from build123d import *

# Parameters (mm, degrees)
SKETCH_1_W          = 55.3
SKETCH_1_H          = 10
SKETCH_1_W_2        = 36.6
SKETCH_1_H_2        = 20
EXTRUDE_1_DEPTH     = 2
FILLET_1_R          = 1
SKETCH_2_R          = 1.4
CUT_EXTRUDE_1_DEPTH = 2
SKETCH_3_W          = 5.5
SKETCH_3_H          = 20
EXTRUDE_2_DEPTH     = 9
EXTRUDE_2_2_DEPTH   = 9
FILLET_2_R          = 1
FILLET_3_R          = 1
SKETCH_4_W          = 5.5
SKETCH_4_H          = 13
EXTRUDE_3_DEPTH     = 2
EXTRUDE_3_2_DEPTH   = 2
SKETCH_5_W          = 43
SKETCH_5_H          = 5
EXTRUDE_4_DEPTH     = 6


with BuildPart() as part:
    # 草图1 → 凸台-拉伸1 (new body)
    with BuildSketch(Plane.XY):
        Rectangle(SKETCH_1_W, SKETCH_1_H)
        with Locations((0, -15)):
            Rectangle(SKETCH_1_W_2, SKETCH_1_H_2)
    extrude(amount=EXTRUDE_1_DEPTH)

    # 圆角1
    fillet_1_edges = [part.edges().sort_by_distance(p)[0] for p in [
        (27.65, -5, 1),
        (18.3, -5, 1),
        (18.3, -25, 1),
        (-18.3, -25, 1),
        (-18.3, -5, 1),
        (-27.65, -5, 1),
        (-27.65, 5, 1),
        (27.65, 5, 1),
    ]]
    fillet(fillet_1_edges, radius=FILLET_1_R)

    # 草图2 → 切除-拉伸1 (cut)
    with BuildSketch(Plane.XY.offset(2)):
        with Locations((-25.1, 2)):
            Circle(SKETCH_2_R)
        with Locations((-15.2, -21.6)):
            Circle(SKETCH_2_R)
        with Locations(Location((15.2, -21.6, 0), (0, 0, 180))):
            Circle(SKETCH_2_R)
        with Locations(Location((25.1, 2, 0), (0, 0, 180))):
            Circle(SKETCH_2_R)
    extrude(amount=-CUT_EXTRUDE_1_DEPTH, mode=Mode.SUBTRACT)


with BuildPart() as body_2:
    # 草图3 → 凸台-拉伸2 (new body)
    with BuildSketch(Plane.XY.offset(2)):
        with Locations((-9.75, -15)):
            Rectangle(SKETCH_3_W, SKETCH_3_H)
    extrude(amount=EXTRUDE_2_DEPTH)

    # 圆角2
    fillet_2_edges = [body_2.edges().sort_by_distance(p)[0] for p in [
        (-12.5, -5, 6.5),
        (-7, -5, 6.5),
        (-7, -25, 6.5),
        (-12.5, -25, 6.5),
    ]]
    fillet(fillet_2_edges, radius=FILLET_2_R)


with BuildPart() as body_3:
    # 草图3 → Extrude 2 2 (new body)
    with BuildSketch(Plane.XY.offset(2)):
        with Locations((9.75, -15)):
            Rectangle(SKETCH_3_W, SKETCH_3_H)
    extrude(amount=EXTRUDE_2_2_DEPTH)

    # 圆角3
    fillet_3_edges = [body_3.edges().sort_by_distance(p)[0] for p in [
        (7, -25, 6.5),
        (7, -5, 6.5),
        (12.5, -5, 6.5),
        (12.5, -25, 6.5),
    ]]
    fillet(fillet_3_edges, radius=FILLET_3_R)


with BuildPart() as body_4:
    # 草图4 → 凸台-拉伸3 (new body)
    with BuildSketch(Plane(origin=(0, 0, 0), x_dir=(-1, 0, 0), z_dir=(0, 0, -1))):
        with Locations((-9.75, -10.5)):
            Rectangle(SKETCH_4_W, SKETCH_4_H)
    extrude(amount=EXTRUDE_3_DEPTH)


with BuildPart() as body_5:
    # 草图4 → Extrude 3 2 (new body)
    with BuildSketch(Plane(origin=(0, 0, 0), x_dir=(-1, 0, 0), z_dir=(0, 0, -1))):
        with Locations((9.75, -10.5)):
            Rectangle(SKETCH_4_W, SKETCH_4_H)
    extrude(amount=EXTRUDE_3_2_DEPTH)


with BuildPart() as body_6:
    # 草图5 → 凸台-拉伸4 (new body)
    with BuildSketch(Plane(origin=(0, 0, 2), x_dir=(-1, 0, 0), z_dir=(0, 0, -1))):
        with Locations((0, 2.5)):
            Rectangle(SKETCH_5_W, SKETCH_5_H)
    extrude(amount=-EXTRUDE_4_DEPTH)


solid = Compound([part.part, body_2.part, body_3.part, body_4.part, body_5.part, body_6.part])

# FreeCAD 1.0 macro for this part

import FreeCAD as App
import Part
import Sketcher
Q = App.Units.Quantity


def edges_at(feature, points):
    """Names of the edges that pass closest to the given points."""
    edges = feature.Shape.Edges
    near = lambda p: min(range(len(edges)), key=lambda i: edges[i].distToShape(Part.Vertex(*p))[0])
    return sorted({f"Edge{near(p) + 1}" for p in points})

doc = App.newDocument("Part")
body = doc.addObject("PartDesign::Body", "Body")

sketch1 = doc.addObject("Sketcher::SketchObject", "Sketch")
body.addObject(sketch1)
sketch1.AttachmentSupport = (doc.XY_Plane, [""])
sketch1.MapMode = "FlatFace"
sketch1.addGeometry([
    Part.LineSegment(App.Vector(-28, 5, 0), App.Vector(-28, -5, 0)),
    Part.LineSegment(App.Vector(-28, -5, 0), App.Vector(-18, -5, 0)),
    Part.LineSegment(App.Vector(-18, -5, 0), App.Vector(-18, -25, 0)),
    Part.LineSegment(App.Vector(-18, -25, 0), App.Vector(18, -25, 0)),
    Part.LineSegment(App.Vector(18, -25, 0), App.Vector(18, -5, 0)),
    Part.LineSegment(App.Vector(18, -5, 0), App.Vector(28, -5, 0)),
    Part.LineSegment(App.Vector(28, -5, 0), App.Vector(28, 5, 0)),
    Part.LineSegment(App.Vector(28, 5, 0), App.Vector(-28, 5, 0)),
], False)
sketch1.addConstraint([
    Sketcher.Constraint("Coincident", 0, 2, 1, 1),
    Sketcher.Constraint("Coincident", 1, 2, 2, 1),
    Sketcher.Constraint("Coincident", 2, 2, 3, 1),
    Sketcher.Constraint("Coincident", 3, 2, 4, 1),
    Sketcher.Constraint("Coincident", 4, 2, 5, 1),
    Sketcher.Constraint("Coincident", 5, 2, 6, 1),
    Sketcher.Constraint("Coincident", 6, 2, 7, 1),
    Sketcher.Constraint("Coincident", 7, 2, 0, 1),
    Sketcher.Constraint("Vertical", 0),
    Sketcher.Constraint("Horizontal", 1),
    Sketcher.Constraint("Vertical", 2),
    Sketcher.Constraint("Horizontal", 3),
    Sketcher.Constraint("Vertical", 4),
    Sketcher.Constraint("Horizontal", 5),
    Sketcher.Constraint("Vertical", 6),
    Sketcher.Constraint("Horizontal", 7),
    Sketcher.Constraint("Symmetric", 0, 2, 6, 2, -1, 1),
    Sketcher.Constraint("Symmetric", 1, 2, 4, 2, -2),
    Sketcher.Constraint("DistanceY", 0, 2, 0, 1, Q("10 mm")),
    Sketcher.Constraint("DistanceY", 2, 2, 2, 1, Q("20 mm")),
    Sketcher.Constraint("DistanceX", 3, 1, 3, 2, Q("36.6 mm")),
    Sketcher.Constraint("DistanceX", 7, 2, 7, 1, Q("55.3 mm")),
])
pad1 = doc.addObject("PartDesign::Pad", "Pad")
body.addObject(pad1)
pad1.Profile = sketch1
pad1.Length = 2
doc.recompute()

fillet = doc.addObject("PartDesign::Fillet", "Fillet")
body.addObject(fillet)
fillet.Base = (pad1, edges_at(pad1, [
    (27.65, -5, 1),
    (18.3, -5, 1),
    (18.3, -25, 1),
    (-18.3, -25, 1),
    (-18.3, -5, 1),
    (-27.65, -5, 1),
    (-27.65, 5, 1),
    (27.65, 5, 1),
]))
fillet.Radius = 1

sketch2 = doc.addObject("Sketcher::SketchObject", "Sketch001")
body.addObject(sketch2)
sketch2.AttachmentSupport = (doc.XY_Plane, [""])
sketch2.MapMode = "FlatFace"
sketch2.AttachmentOffset = App.Placement(App.Vector(0, 0, 2), App.Rotation())
sketch2.addGeometry([
    Part.Circle(App.Vector(-25.1, 2, 0), App.Vector(0, 0, 1), 1.4),
    Part.Circle(App.Vector(-15.2, -21.6, 0), App.Vector(0, 0, 1), 1.4),
    Part.Circle(App.Vector(15.2, -21.6, 0), App.Vector(0, 0, 1), 1.4),
    Part.Circle(App.Vector(25.1, 2, 0), App.Vector(0, 0, 1), 1.4),
], False)
sketch2.addConstraint([
    Sketcher.Constraint("Equal", 0, 1),
    Sketcher.Constraint("Equal", 1, 2),
    Sketcher.Constraint("Equal", 2, 3),
    Sketcher.Constraint("Symmetric", 1, 3, 2, 3, -2),
    Sketcher.Constraint("Symmetric", 0, 3, 3, 3, -2),
    Sketcher.Constraint("Diameter", 0, Q("2.8 mm")),
    Sketcher.Constraint("DistanceY", -1, 1, 0, 3, Q("2 mm")),
    Sketcher.Constraint("DistanceX", 0, 3, -1, 1, Q("25.1 mm")),
    Sketcher.Constraint("DistanceX", 1, 3, -1, 1, Q("15.2 mm")),
    Sketcher.Constraint("DistanceY", 1, 3, -1, 1, Q("21.6 mm")),
])
pocket1 = doc.addObject("PartDesign::Pocket", "Pocket")
body.addObject(pocket1)
pocket1.Profile = sketch2
pocket1.Length = 2
body2 = doc.addObject("PartDesign::Body", "Body001")

sketch3 = doc.addObject("Sketcher::SketchObject", "Sketch002")
body2.addObject(sketch3)
sketch3.AttachmentSupport = (doc.getObject("XY_Plane001"), [""])
sketch3.MapMode = "FlatFace"
sketch3.AttachmentOffset = App.Placement(App.Vector(0, 0, 2), App.Rotation())
sketch3.addGeometry([
    Part.LineSegment(App.Vector(-12, -5, 0), App.Vector(-12, -25, 0)),
    Part.LineSegment(App.Vector(-12, -25, 0), App.Vector(-7, -25, 0)),
    Part.LineSegment(App.Vector(-7, -25, 0), App.Vector(-7, -5, 0)),
    Part.LineSegment(App.Vector(-7, -5, 0), App.Vector(-12, -5, 0)),
], False)
sketch3.addConstraint([
    Sketcher.Constraint("Coincident", 0, 2, 1, 1),
    Sketcher.Constraint("Coincident", 1, 2, 2, 1),
    Sketcher.Constraint("Coincident", 2, 2, 3, 1),
    Sketcher.Constraint("Coincident", 3, 2, 0, 1),
    Sketcher.Constraint("Vertical", 0),
    Sketcher.Constraint("Horizontal", 1),
    Sketcher.Constraint("Vertical", 2),
    Sketcher.Constraint("Horizontal", 3),
    Sketcher.Constraint("DistanceY", 0, 2, 0, 1, Q("20 mm")),
    Sketcher.Constraint("DistanceX", 1, 1, 1, 2, Q("5.5 mm")),
    Sketcher.Constraint("DistanceY", 0, 2, -1, 1, Q("25 mm")),
    Sketcher.Constraint("DistanceX", 1, 2, -1, 1, Q("7 mm")),
])
pad2 = doc.addObject("PartDesign::Pad", "Pad001")
body2.addObject(pad2)
pad2.Profile = sketch3
pad2.Length = 9
doc.recompute()

fillet2 = doc.addObject("PartDesign::Fillet", "Fillet001")
body2.addObject(fillet2)
fillet2.Base = (pad2, edges_at(pad2, [
    (-12.5, -5, 6.5),
    (-7, -5, 6.5),
    (-7, -25, 6.5),
    (-12.5, -25, 6.5),
]))
fillet2.Radius = 1
body3 = doc.addObject("PartDesign::Body", "Body002")

sketch4 = doc.addObject("Sketcher::SketchObject", "Sketch003")
body3.addObject(sketch4)
sketch4.AttachmentSupport = (doc.getObject("XY_Plane002"), [""])
sketch4.MapMode = "FlatFace"
sketch4.AttachmentOffset = App.Placement(App.Vector(0, 0, 2), App.Rotation())
sketch4.addGeometry([
    Part.LineSegment(App.Vector(7, -5, 0), App.Vector(7, -25, 0)),
    Part.LineSegment(App.Vector(7, -25, 0), App.Vector(12, -25, 0)),
    Part.LineSegment(App.Vector(12, -25, 0), App.Vector(12, -5, 0)),
    Part.LineSegment(App.Vector(12, -5, 0), App.Vector(7, -5, 0)),
], False)
sketch4.addConstraint([
    Sketcher.Constraint("Coincident", 0, 2, 1, 1),
    Sketcher.Constraint("Coincident", 1, 2, 2, 1),
    Sketcher.Constraint("Coincident", 2, 2, 3, 1),
    Sketcher.Constraint("Coincident", 3, 2, 0, 1),
    Sketcher.Constraint("Vertical", 0),
    Sketcher.Constraint("Horizontal", 1),
    Sketcher.Constraint("Vertical", 2),
    Sketcher.Constraint("Horizontal", 3),
    Sketcher.Constraint("DistanceY", 0, 2, 0, 1, Q("20 mm")),
    Sketcher.Constraint("DistanceX", 1, 1, 1, 2, Q("5.5 mm")),
    Sketcher.Constraint("DistanceX", -1, 1, 0, 2, Q("7 mm")),
    Sketcher.Constraint("DistanceY", 0, 2, -1, 1, Q("25 mm")),
])
pad3 = doc.addObject("PartDesign::Pad", "Pad002")
body3.addObject(pad3)
pad3.Profile = sketch4
pad3.Length = 9
doc.recompute()

fillet3 = doc.addObject("PartDesign::Fillet", "Fillet002")
body3.addObject(fillet3)
fillet3.Base = (pad3, edges_at(pad3, [
    (7, -25, 6.5),
    (7, -5, 6.5),
    (12.5, -5, 6.5),
    (12.5, -25, 6.5),
]))
fillet3.Radius = 1
body4 = doc.addObject("PartDesign::Body", "Body003")

sketch5 = doc.addObject("Sketcher::SketchObject", "Sketch004")
body4.addObject(sketch5)
sketch5.AttachmentSupport = (doc.getObject("XY_Plane003"), [""])
sketch5.MapMode = "FlatFace"
sketch5.addGeometry([
    Part.LineSegment(App.Vector(12, -4, 0), App.Vector(12, -17, 0)),
    Part.LineSegment(App.Vector(12, -17, 0), App.Vector(7, -17, 0)),
    Part.LineSegment(App.Vector(7, -17, 0), App.Vector(7, -4, 0)),
    Part.LineSegment(App.Vector(7, -4, 0), App.Vector(12, -4, 0)),
], False)
sketch5.addConstraint([
    Sketcher.Constraint("Coincident", 0, 2, 1, 1),
    Sketcher.Constraint("Coincident", 1, 2, 2, 1),
    Sketcher.Constraint("Coincident", 2, 2, 3, 1),
    Sketcher.Constraint("Coincident", 3, 2, 0, 1),
    Sketcher.Constraint("Vertical", 0),
    Sketcher.Constraint("Horizontal", 1),
    Sketcher.Constraint("Vertical", 2),
    Sketcher.Constraint("Horizontal", 3),
    Sketcher.Constraint("DistanceY", 0, 2, 0, 1, Q("13 mm")),
    Sketcher.Constraint("DistanceX", 1, 2, 1, 1, Q("5.5 mm")),
    Sketcher.Constraint("DistanceY", 0, 2, -1, 1, Q("17 mm")),
    Sketcher.Constraint("DistanceX", -1, 1, 1, 2, Q("7 mm")),
])
pad4 = doc.addObject("PartDesign::Pad", "Pad003")
body4.addObject(pad4)
pad4.Profile = sketch5
pad4.Length = 2
pad4.Reversed = True
body5 = doc.addObject("PartDesign::Body", "Body004")

sketch6 = doc.addObject("Sketcher::SketchObject", "Sketch005")
body5.addObject(sketch6)
sketch6.AttachmentSupport = (doc.getObject("XY_Plane004"), [""])
sketch6.MapMode = "FlatFace"
sketch6.addGeometry([
    Part.LineSegment(App.Vector(-7, -4, 0), App.Vector(-7, -17, 0)),
    Part.LineSegment(App.Vector(-7, -17, 0), App.Vector(-12, -17, 0)),
    Part.LineSegment(App.Vector(-12, -17, 0), App.Vector(-12, -4, 0)),
    Part.LineSegment(App.Vector(-12, -4, 0), App.Vector(-7, -4, 0)),
], False)
sketch6.addConstraint([
    Sketcher.Constraint("Coincident", 0, 2, 1, 1),
    Sketcher.Constraint("Coincident", 1, 2, 2, 1),
    Sketcher.Constraint("Coincident", 2, 2, 3, 1),
    Sketcher.Constraint("Coincident", 3, 2, 0, 1),
    Sketcher.Constraint("Vertical", 0),
    Sketcher.Constraint("Horizontal", 1),
    Sketcher.Constraint("Vertical", 2),
    Sketcher.Constraint("Horizontal", 3),
    Sketcher.Constraint("DistanceY", 0, 2, 0, 1, Q("13 mm")),
    Sketcher.Constraint("DistanceX", 1, 2, 1, 1, Q("5.5 mm")),
    Sketcher.Constraint("DistanceX", 0, 2, -1, 1, Q("7 mm")),
    Sketcher.Constraint("DistanceY", 0, 2, -1, 1, Q("17 mm")),
])
pad5 = doc.addObject("PartDesign::Pad", "Pad004")
body5.addObject(pad5)
pad5.Profile = sketch6
pad5.Length = 2
pad5.Reversed = True
body6 = doc.addObject("PartDesign::Body", "Body005")

sketch7 = doc.addObject("Sketcher::SketchObject", "Sketch006")
body6.addObject(sketch7)
sketch7.AttachmentSupport = (doc.getObject("XY_Plane005"), [""])
sketch7.MapMode = "FlatFace"
sketch7.AttachmentOffset = App.Placement(App.Vector(0, 0, 2), App.Rotation())
sketch7.addGeometry([
    Part.LineSegment(App.Vector(22, 5, 0), App.Vector(22, 0, 0)),
    Part.LineSegment(App.Vector(22, 0, 0), App.Vector(-22, 0, 0)),
    Part.LineSegment(App.Vector(-22, 0, 0), App.Vector(-22, 5, 0)),
    Part.LineSegment(App.Vector(-22, 5, 0), App.Vector(22, 5, 0)),
], False)
sketch7.addConstraint([
    Sketcher.Constraint("Coincident", 0, 2, 1, 1),
    Sketcher.Constraint("Coincident", 1, 2, 2, 1),
    Sketcher.Constraint("Coincident", 2, 2, 3, 1),
    Sketcher.Constraint("Coincident", 3, 2, 0, 1),
    Sketcher.Constraint("Vertical", 0),
    Sketcher.Constraint("Horizontal", 1),
    Sketcher.Constraint("Vertical", 2),
    Sketcher.Constraint("Horizontal", 3),
    Sketcher.Constraint("Symmetric", 0, 2, 1, 2, -1, 1),
    Sketcher.Constraint("DistanceX", 1, 2, 1, 1, Q("43 mm")),
    Sketcher.Constraint("DistanceY", 0, 2, 0, 1, Q("5 mm")),
])
pad6 = doc.addObject("PartDesign::Pad", "Pad005")
body6.addObject(pad6)
pad6.Profile = sketch7
pad6.Length = 6

doc.recompute()
